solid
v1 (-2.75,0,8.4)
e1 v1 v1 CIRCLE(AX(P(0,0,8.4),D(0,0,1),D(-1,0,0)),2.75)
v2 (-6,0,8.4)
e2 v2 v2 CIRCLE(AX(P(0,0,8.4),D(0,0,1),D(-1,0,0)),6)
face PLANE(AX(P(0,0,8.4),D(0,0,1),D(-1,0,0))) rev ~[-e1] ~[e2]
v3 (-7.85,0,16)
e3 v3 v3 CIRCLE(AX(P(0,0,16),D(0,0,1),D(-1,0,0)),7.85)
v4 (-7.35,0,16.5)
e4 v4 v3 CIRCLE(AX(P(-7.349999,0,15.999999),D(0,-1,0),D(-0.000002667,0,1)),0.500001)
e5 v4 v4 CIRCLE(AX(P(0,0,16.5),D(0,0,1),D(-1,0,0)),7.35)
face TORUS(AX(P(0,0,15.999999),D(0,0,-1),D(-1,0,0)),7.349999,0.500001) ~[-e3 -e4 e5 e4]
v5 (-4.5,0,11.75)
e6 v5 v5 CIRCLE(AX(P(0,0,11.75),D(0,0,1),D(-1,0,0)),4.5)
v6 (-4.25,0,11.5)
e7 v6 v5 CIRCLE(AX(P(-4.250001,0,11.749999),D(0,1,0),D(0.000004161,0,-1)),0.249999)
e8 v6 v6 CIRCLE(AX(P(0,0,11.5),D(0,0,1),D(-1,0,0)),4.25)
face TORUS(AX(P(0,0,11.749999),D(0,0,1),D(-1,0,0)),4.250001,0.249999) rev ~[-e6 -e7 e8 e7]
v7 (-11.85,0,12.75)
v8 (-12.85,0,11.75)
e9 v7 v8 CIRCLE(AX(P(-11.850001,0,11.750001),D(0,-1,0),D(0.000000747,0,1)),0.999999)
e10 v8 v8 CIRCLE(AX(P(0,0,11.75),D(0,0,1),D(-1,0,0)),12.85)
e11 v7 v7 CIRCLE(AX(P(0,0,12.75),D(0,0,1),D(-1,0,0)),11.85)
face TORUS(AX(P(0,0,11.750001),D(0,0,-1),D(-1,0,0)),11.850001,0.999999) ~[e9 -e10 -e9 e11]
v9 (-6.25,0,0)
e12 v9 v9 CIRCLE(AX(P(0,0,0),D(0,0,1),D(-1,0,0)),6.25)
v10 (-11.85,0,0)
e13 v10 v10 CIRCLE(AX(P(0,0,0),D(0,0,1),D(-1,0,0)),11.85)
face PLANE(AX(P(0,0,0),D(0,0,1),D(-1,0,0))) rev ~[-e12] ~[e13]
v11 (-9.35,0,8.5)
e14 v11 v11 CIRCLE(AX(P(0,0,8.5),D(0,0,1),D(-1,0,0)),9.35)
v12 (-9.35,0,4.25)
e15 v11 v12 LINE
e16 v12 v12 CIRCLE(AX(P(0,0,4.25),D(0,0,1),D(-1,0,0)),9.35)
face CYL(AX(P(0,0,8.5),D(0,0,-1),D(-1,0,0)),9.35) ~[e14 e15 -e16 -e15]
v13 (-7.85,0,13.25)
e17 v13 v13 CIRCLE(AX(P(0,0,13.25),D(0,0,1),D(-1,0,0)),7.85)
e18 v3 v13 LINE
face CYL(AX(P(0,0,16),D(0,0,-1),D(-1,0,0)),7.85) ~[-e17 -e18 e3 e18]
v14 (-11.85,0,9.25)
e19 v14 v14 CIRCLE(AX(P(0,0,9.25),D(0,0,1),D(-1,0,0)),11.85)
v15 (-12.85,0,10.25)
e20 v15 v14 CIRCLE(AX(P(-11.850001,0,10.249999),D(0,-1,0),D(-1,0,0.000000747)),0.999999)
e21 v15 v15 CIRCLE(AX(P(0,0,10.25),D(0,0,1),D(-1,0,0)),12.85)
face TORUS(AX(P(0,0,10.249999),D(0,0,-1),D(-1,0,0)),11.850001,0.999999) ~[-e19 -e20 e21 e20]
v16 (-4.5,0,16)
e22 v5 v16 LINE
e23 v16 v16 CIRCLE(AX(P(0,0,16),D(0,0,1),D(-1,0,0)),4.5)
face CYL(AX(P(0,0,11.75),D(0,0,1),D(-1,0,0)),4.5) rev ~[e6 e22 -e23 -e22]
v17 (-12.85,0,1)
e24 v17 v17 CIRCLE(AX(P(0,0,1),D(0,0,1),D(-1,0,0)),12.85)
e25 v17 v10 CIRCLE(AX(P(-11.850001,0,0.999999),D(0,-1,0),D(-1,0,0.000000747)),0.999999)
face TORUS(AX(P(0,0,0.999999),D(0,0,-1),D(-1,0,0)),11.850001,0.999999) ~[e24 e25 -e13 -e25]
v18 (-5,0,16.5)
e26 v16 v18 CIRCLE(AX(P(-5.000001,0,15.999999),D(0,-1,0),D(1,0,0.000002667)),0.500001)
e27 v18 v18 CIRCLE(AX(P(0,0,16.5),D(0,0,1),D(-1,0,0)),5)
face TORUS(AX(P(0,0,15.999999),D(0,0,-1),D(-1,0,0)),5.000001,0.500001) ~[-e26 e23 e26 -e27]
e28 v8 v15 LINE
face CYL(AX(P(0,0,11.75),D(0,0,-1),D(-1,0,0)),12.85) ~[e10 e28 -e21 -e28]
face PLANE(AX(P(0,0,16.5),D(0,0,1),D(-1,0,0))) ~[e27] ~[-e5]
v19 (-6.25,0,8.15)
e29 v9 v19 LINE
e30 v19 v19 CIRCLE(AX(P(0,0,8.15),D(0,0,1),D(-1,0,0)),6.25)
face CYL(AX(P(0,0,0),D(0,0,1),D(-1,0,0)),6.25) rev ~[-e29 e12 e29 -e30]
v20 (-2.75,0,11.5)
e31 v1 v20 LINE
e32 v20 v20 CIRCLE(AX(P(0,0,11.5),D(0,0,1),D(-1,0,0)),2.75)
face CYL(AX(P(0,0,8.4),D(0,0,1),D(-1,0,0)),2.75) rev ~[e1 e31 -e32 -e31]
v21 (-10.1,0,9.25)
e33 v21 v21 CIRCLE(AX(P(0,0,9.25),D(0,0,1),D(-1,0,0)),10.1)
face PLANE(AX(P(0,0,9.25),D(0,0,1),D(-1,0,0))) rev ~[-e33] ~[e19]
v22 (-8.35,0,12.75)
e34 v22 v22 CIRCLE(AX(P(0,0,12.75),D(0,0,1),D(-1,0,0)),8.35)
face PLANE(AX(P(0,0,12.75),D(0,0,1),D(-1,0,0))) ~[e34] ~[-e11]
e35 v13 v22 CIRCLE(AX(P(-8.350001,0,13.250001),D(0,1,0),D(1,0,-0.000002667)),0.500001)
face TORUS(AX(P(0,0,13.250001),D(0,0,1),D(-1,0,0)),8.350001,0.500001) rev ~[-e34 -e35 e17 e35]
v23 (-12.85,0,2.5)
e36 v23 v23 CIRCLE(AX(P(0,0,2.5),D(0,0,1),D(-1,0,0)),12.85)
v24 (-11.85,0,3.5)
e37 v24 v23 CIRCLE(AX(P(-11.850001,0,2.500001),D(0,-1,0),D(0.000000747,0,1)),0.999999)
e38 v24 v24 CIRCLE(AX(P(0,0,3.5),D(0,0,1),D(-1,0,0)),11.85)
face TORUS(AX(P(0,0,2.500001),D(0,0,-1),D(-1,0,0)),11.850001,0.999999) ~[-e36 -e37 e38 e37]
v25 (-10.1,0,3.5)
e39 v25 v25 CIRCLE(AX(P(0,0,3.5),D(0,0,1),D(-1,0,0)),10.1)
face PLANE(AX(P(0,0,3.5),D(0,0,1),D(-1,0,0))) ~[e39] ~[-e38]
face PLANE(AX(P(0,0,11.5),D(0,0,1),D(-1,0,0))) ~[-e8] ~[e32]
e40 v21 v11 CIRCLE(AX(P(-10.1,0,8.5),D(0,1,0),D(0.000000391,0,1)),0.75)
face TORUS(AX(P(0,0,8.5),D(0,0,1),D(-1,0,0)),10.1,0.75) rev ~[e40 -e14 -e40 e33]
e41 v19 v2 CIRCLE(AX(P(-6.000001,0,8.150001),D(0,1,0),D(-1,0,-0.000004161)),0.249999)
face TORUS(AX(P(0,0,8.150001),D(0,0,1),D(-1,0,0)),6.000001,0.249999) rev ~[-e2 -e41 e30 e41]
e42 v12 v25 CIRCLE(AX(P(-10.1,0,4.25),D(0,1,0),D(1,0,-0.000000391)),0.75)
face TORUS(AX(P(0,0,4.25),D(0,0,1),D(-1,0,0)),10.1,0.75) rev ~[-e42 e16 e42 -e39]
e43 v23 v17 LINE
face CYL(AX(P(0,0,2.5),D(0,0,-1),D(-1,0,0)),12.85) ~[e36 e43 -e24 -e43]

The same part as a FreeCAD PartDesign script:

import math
import FreeCAD as App
import Part
import Sketcher

doc = App.newDocument("Part")
body = doc.addObject("PartDesign::Body", "Body")

# Sketch on XZ plane
sketch1 = body.newObject("Sketcher::SketchObject", "Sketch")
sketch1.AttachmentSupport = (doc.getObject("XZ_Plane"), [""])
sketch1.MapMode = "FlatFace"
sketch1.addGeometry([
    Part.LineSegment(App.Vector(-11.85, 0, 0), App.Vector(-6.25, 0, 0)),  # 0
    Part.LineSegment(App.Vector(-6.25, 0, 0), App.Vector(-6.25, 8.15, 0)),  # 1
    Part.ArcOfCircle(Part.Circle(App.Vector(-6, 8.15, 0), App.Vector(0, 0, 1), 0.25), math.radians(90), math.radians(180)),  # 2
    Part.LineSegment(App.Vector(-6, 8.4, 0), App.Vector(-2.75, 8.4, 0)),  # 3
    Part.LineSegment(App.Vector(-2.75, 8.4, 0), App.Vector(-2.75, 11.5, 0)),  # 4
    Part.LineSegment(App.Vector(-2.75, 11.5, 0), App.Vector(-4.25, 11.5, 0)),  # 5
    Part.ArcOfCircle(Part.Circle(App.Vector(-4.25, 11.75, 0), App.Vector(0, 0, 1), 0.25), math.radians(180), math.radians(270)),  # 6
    Part.LineSegment(App.Vector(-4.5, 11.75, 0), App.Vector(-4.5, 16, 0)),  # 7
    Part.ArcOfCircle(Part.Circle(App.Vector(-5, 16, 0), App.Vector(0, 0, 1), 0.5), math.radians(0), math.radians(90)),  # 8
    Part.LineSegment(App.Vector(-5, 16.5, 0), App.Vector(-7.35, 16.5, 0)),  # 9
    Part.ArcOfCircle(Part.Circle(App.Vector(-7.35, 16, 0), App.Vector(0, 0, 1), 0.5), math.radians(90), math.radians(180)),  # 10
    Part.LineSegment(App.Vector(-7.85, 16, 0), App.Vector(-7.85, 13.25, 0)),  # 11
    Part.ArcOfCircle(Part.Circle(App.Vector(-8.35, 13.25, 0), App.Vector(0, 0, 1), 0.5), math.radians(-90), math.radians(0)),  # 12
    Part.LineSegment(App.Vector(-8.35, 12.75, 0), App.Vector(-11.85, 12.75, 0)),  # 13
    Part.ArcOfCircle(Part.Circle(App.Vector(-11.85, 11.75, 0), App.Vector(0, 0, 1), 1), math.radians(90), math.radians(180)),  # 14
    Part.LineSegment(App.Vector(-12.85, 11.75, 0), App.Vector(-12.85, 10.25, 0)),  # 15
    Part.ArcOfCircle(Part.Circle(App.Vector(-11.85, 10.25, 0), App.Vector(0, 0, 1), 1), math.radians(180), math.radians(270)),  # 16
    Part.LineSegment(App.Vector(-11.85, 9.25, 0), App.Vector(-10.1, 9.25, 0)),  # 17
    Part.ArcOfCircle(Part.Circle(App.Vector(-10.1, 8.5, 0), App.Vector(0, 0, 1), 0.75), math.radians(0), math.radians(90)),  # 18
    Part.LineSegment(App.Vector(-9.35, 8.5, 0), App.Vector(-9.35, 4.25, 0)),  # 19
    Part.ArcOfCircle(Part.Circle(App.Vector(-10.1, 4.25, 0), App.Vector(0, 0, 1), 0.75), math.radians(-90), math.radians(0)),  # 20
    Part.LineSegment(App.Vector(-10.1, 3.5, 0), App.Vector(-11.85, 3.5, 0)),  # 21
    Part.ArcOfCircle(Part.Circle(App.Vector(-11.85, 2.5, 0), App.Vector(0, 0, 1), 1), math.radians(90), math.radians(180)),  # 22
    Part.LineSegment(App.Vector(-12.85, 2.5, 0), App.Vector(-12.85, 1, 0)),  # 23
    Part.ArcOfCircle(Part.Circle(App.Vector(-11.85, 1, 0), App.Vector(0, 0, 1), 1), math.radians(180), math.radians(270)),  # 24
], False)
sketch1.addConstraint([
    Sketcher.Constraint("Coincident", 0, 2, 1, 1),
    Sketcher.Constraint("Coincident", 1, 2, 2, 2),
    Sketcher.Constraint("Coincident", 2, 1, 3, 1),
    Sketcher.Constraint("Coincident", 3, 2, 4, 1),
    Sketcher.Constraint("Coincident", 4, 2, 5, 1),
    Sketcher.Constraint("Coincident", 5, 2, 6, 2),
    Sketcher.Constraint("Coincident", 6, 1, 7, 1),
    Sketcher.Constraint("Coincident", 7, 2, 8, 1),
    Sketcher.Constraint("Coincident", 8, 2, 9, 1),
    Sketcher.Constraint("Coincident", 9, 2, 10, 1),
    Sketcher.Constraint("Coincident", 10, 2, 11, 1),
    Sketcher.Constraint("Coincident", 11, 2, 12, 2),
    Sketcher.Constraint("Coincident", 12, 1, 13, 1),
    Sketcher.Constraint("Tangent", 13, 2, 14, 1),
    Sketcher.Constraint("Tangent", 14, 2, 15, 1),
    Sketcher.Constraint("Tangent", 15, 2, 16, 1),
    Sketcher.Constraint("Tangent", 16, 2, 17, 1),
    Sketcher.Constraint("Tangent", 17, 2, 18, 2),
    Sketcher.Constraint("Tangent", 18, 1, 19, 1),
    Sketcher.Constraint("Tangent", 19, 2, 20, 2),
    Sketcher.Constraint("Tangent", 20, 1, 21, 1),
    Sketcher.Constraint("Tangent", 21, 2, 22, 1),
    Sketcher.Constraint("Tangent", 22, 2, 23, 1),
    Sketcher.Constraint("Tangent", 23, 2, 24, 1),
    Sketcher.Constraint("Tangent", 24, 2, 0, 1),
    Sketcher.Constraint("Horizontal", 0),
    Sketcher.Constraint("Vertical", 1),
    Sketcher.Constraint("Horizontal", 3),
    Sketcher.Constraint("Vertical", 4),
    Sketcher.Constraint("Horizontal", 5),
    Sketcher.Constraint("Vertical", 7),
    Sketcher.Constraint("Horizontal", 9),
    Sketcher.Constraint("Vertical", 11),
    Sketcher.Constraint("Horizontal", 13),
    Sketcher.Constraint("Vertical", 15),
    Sketcher.Constraint("Horizontal", 17),
    Sketcher.Constraint("Vertical", 19),
    Sketcher.Constraint("Horizontal", 21),
    Sketcher.Constraint("Vertical", 23),
    Sketcher.Constraint("Equal", 2, 6),
    Sketcher.Constraint("Equal", 8, 10),
    Sketcher.Constraint("Equal", 10, 12),
    Sketcher.Constraint("Equal", 14, 16),
    Sketcher.Constraint("Equal", 18, 20),
    Sketcher.Constraint("Equal", 16, 22),
    Sketcher.Constraint("Equal", 22, 24),
    Sketcher.Constraint("PointOnObject", 0, 2, -1),
    Sketcher.Constraint("Horizontal", 6, 3, 14, 3),
    Sketcher.Constraint("Horizontal", 2, 3, 1, 2),
    Sketcher.Constraint("Horizontal", 14, 3, 6, 1),
    Sketcher.Constraint("Horizontal", 10, 3, 7, 2),
    Sketcher.Constraint("Horizontal", 7, 2, 10, 2),
    Sketcher.Constraint("Horizontal", 12, 3, 11, 2),
    Sketcher.Constraint("Vertical", 16, 3, 22, 3),
    Sketcher.Constraint("Vertical", 6, 3, 5, 2),
    Sketcher.Constraint("Vertical", 10, 3, 9, 2),
    Sketcher.Constraint("Equal", 5, 15),
    Sketcher.Constraint("Equal", 7, 19),
    Sketcher.Constraint("Equal", 15, 23),
    Sketcher.Constraint("Radius", 14, 0.999999),
    Sketcher.Constraint("Radius", 8, 0.500001),
    Sketcher.Constraint("Radius", 2, 0.249999),
    Sketcher.Constraint("Radius", 18, 0.75),
    Sketcher.Constraint("DistanceX", 0, 1, 0, 2, 5.6),
    Sketcher.Constraint("DistanceX", 5, 2, 5, 1, 1.5),
    Sketcher.Constraint("DistanceX", 13, 2, 13, 1, 3.5),
    Sketcher.Constraint("DistanceY", 4, 1, 4, 2, 3.1),
    Sketcher.Constraint("DistanceX", 2, 3, -1, 1, 6.000001),
    Sketcher.Constraint("DistanceX", 8, 3, -1, 1, 5.000001),
    Sketcher.Constraint("DistanceY", -1, 1, 8, 3, 15.999999),
    Sketcher.Constraint("DistanceX", 2, 1, -1, 1, 6.0),
    Sketcher.Constraint("DistanceX", 8, 2, -1, 1, 5.0),
    Sketcher.Constraint("DistanceX", 12, 1, 10, 3, 1.000001),
    Sketcher.Constraint("DistanceX", 17, 1, 17, 2, 1.75),
])
revolution = body.newObject("PartDesign::Revolution", "Revolution")
revolution.Profile = sketch1
revolution.ReferenceAxis = (sketch1, ["V_Axis"])
revolution.Angle = 360

doc.recompute()
